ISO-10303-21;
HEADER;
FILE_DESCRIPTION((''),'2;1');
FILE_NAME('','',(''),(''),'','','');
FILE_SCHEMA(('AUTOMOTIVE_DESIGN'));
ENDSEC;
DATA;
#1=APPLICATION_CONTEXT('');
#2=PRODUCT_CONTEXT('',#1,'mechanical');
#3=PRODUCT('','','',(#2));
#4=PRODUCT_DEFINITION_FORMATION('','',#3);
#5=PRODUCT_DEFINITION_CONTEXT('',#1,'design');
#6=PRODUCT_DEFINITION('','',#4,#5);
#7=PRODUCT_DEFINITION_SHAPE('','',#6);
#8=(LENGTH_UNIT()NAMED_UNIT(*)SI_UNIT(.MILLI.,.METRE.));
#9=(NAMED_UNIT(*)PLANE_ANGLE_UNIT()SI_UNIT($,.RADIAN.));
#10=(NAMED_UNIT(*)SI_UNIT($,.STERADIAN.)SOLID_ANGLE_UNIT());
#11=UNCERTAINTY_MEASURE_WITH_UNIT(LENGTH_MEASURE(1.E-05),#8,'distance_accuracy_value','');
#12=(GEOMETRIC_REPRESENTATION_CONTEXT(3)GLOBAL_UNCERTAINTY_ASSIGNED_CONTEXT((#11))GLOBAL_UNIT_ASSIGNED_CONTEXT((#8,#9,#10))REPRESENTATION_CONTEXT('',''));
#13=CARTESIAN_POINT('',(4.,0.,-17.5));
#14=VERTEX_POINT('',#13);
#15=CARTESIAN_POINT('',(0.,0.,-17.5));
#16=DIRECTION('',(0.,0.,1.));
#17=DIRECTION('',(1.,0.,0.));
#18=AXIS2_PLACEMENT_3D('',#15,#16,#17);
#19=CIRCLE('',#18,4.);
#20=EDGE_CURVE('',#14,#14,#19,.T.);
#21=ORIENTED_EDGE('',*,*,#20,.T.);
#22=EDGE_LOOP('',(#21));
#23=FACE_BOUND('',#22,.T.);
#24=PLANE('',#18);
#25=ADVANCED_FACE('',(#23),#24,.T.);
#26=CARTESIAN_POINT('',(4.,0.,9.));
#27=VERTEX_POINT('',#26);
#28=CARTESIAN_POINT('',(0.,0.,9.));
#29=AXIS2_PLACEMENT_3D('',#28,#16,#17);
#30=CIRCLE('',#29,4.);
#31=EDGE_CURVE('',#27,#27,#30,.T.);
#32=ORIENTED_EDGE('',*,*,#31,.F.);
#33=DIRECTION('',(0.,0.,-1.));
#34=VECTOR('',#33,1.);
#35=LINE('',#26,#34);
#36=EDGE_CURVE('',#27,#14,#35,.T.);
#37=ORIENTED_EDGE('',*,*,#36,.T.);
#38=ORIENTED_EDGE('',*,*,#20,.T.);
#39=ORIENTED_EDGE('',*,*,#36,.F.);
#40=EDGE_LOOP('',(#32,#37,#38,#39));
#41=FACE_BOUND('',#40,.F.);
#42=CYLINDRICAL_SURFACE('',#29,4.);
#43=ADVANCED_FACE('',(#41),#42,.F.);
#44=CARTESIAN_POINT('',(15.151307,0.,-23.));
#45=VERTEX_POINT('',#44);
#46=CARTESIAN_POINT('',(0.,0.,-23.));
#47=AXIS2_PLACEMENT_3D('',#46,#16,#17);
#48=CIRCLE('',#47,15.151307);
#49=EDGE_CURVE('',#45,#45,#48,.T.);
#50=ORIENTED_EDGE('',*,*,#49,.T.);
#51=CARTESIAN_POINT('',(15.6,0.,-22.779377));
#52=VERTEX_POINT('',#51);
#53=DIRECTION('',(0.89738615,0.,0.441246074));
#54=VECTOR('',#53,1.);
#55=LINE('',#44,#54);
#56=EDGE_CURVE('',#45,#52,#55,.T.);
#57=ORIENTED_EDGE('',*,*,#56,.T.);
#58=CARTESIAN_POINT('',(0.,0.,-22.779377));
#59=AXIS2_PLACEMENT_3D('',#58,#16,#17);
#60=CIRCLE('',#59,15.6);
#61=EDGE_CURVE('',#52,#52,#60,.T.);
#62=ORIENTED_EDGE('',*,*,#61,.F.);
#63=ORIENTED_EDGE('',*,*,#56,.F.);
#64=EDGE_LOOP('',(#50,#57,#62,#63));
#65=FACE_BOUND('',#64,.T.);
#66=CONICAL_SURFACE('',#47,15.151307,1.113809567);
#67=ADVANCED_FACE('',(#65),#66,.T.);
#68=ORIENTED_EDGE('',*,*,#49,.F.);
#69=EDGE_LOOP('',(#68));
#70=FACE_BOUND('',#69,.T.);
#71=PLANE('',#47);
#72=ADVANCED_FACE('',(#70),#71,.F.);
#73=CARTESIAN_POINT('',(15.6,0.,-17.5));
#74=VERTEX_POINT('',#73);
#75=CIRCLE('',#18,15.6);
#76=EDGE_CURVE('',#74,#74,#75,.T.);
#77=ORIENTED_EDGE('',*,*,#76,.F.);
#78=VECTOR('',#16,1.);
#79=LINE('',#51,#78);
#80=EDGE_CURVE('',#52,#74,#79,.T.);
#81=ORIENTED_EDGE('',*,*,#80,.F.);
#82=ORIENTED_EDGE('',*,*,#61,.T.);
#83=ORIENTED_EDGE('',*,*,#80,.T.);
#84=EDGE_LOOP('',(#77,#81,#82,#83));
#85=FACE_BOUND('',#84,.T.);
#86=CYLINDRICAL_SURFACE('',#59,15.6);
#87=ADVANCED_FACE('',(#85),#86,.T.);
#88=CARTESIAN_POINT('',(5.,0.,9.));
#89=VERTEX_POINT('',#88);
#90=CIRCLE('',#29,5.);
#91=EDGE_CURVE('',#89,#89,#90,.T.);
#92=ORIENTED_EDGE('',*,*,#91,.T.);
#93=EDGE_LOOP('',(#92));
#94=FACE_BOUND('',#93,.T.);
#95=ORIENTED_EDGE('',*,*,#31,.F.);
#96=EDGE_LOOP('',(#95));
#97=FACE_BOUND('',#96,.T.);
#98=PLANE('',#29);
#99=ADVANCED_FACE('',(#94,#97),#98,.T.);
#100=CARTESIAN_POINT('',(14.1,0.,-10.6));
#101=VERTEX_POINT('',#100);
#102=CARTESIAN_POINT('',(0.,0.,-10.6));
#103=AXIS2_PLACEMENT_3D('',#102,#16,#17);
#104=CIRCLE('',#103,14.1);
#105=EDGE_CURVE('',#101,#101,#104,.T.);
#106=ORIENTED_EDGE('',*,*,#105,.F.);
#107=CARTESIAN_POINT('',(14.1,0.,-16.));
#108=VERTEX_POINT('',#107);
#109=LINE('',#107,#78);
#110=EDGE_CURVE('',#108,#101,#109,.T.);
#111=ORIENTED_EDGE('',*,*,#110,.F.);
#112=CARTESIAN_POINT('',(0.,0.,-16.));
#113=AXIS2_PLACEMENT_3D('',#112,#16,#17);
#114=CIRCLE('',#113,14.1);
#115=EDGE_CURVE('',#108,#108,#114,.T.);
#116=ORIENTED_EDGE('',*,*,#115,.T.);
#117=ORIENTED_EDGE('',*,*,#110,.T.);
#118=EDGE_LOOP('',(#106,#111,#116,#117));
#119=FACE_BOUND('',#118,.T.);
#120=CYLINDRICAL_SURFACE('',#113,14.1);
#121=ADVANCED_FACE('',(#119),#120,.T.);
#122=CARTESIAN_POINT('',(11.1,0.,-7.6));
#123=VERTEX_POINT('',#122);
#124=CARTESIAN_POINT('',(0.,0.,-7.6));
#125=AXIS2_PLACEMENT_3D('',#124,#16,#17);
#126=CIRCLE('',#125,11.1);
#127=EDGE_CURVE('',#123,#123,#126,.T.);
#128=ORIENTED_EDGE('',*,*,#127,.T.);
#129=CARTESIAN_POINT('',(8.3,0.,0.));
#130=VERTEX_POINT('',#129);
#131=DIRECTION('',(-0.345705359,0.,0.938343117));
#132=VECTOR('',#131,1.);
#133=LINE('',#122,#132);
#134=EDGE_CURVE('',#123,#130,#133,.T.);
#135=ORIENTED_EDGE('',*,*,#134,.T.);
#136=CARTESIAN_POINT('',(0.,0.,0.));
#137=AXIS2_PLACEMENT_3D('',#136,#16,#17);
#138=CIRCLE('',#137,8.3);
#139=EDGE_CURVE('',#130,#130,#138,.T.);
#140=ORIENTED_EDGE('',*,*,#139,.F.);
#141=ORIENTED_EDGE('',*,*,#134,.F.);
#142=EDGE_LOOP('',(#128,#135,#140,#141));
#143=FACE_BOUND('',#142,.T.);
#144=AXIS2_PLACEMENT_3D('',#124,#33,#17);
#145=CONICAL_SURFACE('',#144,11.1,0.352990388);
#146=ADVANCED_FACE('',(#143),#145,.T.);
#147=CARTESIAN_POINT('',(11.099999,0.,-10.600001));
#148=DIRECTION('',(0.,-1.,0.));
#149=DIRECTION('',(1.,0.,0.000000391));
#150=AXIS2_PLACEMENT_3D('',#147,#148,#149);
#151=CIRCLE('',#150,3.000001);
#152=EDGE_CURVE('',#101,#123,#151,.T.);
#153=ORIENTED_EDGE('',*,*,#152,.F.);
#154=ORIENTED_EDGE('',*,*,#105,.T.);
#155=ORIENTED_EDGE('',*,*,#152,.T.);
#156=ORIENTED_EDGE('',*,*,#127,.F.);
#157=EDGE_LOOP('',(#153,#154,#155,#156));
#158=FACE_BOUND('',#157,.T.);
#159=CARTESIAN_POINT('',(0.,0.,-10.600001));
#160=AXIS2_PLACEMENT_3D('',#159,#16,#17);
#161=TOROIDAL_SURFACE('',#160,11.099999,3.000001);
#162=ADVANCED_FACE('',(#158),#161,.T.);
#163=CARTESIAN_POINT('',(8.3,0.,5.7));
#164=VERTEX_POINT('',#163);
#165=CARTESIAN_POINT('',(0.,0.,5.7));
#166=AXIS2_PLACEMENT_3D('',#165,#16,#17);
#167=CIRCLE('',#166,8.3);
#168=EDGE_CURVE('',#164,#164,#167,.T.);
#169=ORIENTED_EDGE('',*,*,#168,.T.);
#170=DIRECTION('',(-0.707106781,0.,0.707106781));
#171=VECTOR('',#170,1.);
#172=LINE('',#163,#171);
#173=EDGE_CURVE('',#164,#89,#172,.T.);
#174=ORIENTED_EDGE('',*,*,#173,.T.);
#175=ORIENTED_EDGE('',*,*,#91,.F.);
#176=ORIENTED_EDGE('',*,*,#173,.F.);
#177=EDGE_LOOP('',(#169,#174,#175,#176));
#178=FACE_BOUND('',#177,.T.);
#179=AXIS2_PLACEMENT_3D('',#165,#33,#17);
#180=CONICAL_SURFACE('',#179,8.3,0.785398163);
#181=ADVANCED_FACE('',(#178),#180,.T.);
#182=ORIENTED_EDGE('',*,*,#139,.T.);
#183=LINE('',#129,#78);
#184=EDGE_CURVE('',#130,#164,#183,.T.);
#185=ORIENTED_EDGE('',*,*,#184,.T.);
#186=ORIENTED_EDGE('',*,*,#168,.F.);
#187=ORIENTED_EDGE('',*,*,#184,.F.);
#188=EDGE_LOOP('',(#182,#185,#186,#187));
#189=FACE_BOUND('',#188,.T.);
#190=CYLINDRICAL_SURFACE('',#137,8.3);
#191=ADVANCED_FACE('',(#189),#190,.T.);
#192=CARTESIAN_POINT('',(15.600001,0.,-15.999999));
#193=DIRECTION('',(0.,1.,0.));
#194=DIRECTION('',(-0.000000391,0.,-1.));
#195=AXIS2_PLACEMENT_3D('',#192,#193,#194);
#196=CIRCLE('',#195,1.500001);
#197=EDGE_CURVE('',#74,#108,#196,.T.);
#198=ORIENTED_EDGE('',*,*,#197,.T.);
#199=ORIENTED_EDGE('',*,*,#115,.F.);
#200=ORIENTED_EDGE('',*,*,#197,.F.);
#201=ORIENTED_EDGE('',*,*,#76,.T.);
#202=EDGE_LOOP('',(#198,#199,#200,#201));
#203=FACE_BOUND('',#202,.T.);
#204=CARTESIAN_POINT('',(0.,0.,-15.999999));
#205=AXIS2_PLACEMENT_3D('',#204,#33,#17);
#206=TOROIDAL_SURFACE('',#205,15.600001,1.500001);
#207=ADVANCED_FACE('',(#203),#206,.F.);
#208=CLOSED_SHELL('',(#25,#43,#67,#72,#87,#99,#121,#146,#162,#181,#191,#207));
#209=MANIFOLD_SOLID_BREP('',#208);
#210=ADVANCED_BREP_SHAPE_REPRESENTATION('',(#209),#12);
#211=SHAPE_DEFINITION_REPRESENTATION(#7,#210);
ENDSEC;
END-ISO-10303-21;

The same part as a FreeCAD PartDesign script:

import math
import FreeCAD as App
import Part
import Sketcher
Q = App.Units.Quantity

doc = App.newDocument("Part")
body = doc.addObject("PartDesign::Body", "Body")

sketch1 = body.newObject("Sketcher::SketchObject", "Sketch")
sketch1.AttachmentSupport = (doc.getObject("XZ_Plane"), [""])
sketch1.MapMode = "FlatFace"
sketch1.addGeometry([
    Part.LineSegment(App.Vector(0, 9, 0), App.Vector(0, -23, 0)),
    Part.LineSegment(App.Vector(0, -23, 0), App.Vector(15.15, -23, 0)),
    Part.LineSegment(App.Vector(15.15, -23, 0), App.Vector(15.6, -22.78, 0)),
    Part.LineSegment(App.Vector(15.6, -22.78, 0), App.Vector(15.6, -17.5, 0)),
    Part.ArcOfCircle(Part.Circle(App.Vector(15.6, -16, 0), App.Vector(0, 0, 1), 1.5), math.radians(-180), math.radians(-90)),
    Part.LineSegment(App.Vector(14.1, -16, 0), App.Vector(14.1, -10.6, 0)),
    Part.ArcOfCircle(Part.Circle(App.Vector(11.1, -10.6, 0), App.Vector(0, 0, 1), 3), math.radians(0), math.radians(90)),
    Part.LineSegment(App.Vector(11.1, -7.6, 0), App.Vector(8.3, 0, 0)),
    Part.LineSegment(App.Vector(8.3, 0, 0), App.Vector(8.3, 5.7, 0)),
    Part.LineSegment(App.Vector(8.3, 5.7, 0), App.Vector(5, 9, 0)),
    Part.LineSegment(App.Vector(5, 9, 0), App.Vector(0, 9, 0)),
], False)
sketch1.addConstraint([
    Sketcher.Constraint("Coincident", 0, 2, 1, 1),
    Sketcher.Constraint("Coincident", 1, 2, 2, 1),
    Sketcher.Constraint("Coincident", 2, 2, 3, 1),
    Sketcher.Constraint("Coincident", 3, 2, 4, 2),
    Sketcher.Constraint("Tangent", 4, 1, 5, 1),
    Sketcher.Constraint("Tangent", 5, 2, 6, 1),
    Sketcher.Constraint("Coincident", 6, 2, 7, 1),
    Sketcher.Constraint("Coincident", 7, 2, 8, 1),
    Sketcher.Constraint("Coincident", 8, 2, 9, 1),
    Sketcher.Constraint("Coincident", 9, 2, 10, 1),
    Sketcher.Constraint("Coincident", 10, 2, 0, 1),
    Sketcher.Constraint("Vertical", 0),
    Sketcher.Constraint("Horizontal", 1),
    Sketcher.Constraint("Vertical", 3),
    Sketcher.Constraint("Vertical", 5),
    Sketcher.Constraint("Vertical", 8),
    Sketcher.Constraint("Horizontal", 10),
    Sketcher.Constraint("PointOnObject", 0, 2, -2),
    Sketcher.Constraint("PointOnObject", 7, 2, -1),
    Sketcher.Constraint("Vertical", 4, 3, 2, 2),
    Sketcher.Constraint("Radius", 6, Q("3.000001 mm")),
    Sketcher.Constraint("Radius", 4, Q("1.500001 mm")),
    Sketcher.Constraint("DistanceX", 10, 2, 10, 1, Q("5 mm")),
    Sketcher.Constraint("DistanceY", 0, 2, 0, 1, Q("32 mm")),
    Sketcher.Constraint("Angle", 9, Q("135 deg")),
    Sketcher.Constraint("DistanceY", 5, 1, 5, 2, Q("5.4 mm")),
    Sketcher.Constraint("DistanceY", 8, 1, 8, 2, Q("5.7 mm")),
    Sketcher.Constraint("DistanceY", 4, 3, -1, 1, Q("15.999999 mm")),
    Sketcher.Constraint("DistanceY", 0, 2, -1, 1, Q("23 mm")),
    Sketcher.Constraint("DistanceX", 6, 2, 5, 2, Q("3 mm")),
    Sketcher.Constraint("Distance", 2, Q("0.5 mm")),
    Sketcher.Constraint("DistanceX", -1, 1, 4, 3, Q("15.600001 mm")),
    Sketcher.Constraint("DistanceX", 1, 1, 1, 2, Q("15.151307 mm")),
])
revolution = body.newObject("PartDesign::Revolution", "Revolution")
revolution.Profile = sketch1
revolution.ReferenceAxis = (sketch1, ["V_Axis"])
revolution.Angle = 360

sketch2 = body.newObject("Sketcher::SketchObject", "Sketch001")
sketch2.AttachmentSupport = (doc.getObject("XY_Plane"), [""])
sketch2.MapMode = "FlatFace"
sketch2.AttachmentOffset = App.Placement(App.Vector(0, 0, 9), App.Rotation())
sketch2.addGeometry(Part.Circle(App.Vector(0, 0, 0), App.Vector(0, 0, 1), 4), False)
sketch2.addConstraint([
    Sketcher.Constraint("Coincident", 0, 3, -1, 1),
    Sketcher.Constraint("Diameter", 0, Q("8 mm")),
])
pocket1 = body.newObject("PartDesign::Pocket", "Pocket")
pocket1.Profile = sketch2
pocket1.Length = 26.5

doc.recompute()
